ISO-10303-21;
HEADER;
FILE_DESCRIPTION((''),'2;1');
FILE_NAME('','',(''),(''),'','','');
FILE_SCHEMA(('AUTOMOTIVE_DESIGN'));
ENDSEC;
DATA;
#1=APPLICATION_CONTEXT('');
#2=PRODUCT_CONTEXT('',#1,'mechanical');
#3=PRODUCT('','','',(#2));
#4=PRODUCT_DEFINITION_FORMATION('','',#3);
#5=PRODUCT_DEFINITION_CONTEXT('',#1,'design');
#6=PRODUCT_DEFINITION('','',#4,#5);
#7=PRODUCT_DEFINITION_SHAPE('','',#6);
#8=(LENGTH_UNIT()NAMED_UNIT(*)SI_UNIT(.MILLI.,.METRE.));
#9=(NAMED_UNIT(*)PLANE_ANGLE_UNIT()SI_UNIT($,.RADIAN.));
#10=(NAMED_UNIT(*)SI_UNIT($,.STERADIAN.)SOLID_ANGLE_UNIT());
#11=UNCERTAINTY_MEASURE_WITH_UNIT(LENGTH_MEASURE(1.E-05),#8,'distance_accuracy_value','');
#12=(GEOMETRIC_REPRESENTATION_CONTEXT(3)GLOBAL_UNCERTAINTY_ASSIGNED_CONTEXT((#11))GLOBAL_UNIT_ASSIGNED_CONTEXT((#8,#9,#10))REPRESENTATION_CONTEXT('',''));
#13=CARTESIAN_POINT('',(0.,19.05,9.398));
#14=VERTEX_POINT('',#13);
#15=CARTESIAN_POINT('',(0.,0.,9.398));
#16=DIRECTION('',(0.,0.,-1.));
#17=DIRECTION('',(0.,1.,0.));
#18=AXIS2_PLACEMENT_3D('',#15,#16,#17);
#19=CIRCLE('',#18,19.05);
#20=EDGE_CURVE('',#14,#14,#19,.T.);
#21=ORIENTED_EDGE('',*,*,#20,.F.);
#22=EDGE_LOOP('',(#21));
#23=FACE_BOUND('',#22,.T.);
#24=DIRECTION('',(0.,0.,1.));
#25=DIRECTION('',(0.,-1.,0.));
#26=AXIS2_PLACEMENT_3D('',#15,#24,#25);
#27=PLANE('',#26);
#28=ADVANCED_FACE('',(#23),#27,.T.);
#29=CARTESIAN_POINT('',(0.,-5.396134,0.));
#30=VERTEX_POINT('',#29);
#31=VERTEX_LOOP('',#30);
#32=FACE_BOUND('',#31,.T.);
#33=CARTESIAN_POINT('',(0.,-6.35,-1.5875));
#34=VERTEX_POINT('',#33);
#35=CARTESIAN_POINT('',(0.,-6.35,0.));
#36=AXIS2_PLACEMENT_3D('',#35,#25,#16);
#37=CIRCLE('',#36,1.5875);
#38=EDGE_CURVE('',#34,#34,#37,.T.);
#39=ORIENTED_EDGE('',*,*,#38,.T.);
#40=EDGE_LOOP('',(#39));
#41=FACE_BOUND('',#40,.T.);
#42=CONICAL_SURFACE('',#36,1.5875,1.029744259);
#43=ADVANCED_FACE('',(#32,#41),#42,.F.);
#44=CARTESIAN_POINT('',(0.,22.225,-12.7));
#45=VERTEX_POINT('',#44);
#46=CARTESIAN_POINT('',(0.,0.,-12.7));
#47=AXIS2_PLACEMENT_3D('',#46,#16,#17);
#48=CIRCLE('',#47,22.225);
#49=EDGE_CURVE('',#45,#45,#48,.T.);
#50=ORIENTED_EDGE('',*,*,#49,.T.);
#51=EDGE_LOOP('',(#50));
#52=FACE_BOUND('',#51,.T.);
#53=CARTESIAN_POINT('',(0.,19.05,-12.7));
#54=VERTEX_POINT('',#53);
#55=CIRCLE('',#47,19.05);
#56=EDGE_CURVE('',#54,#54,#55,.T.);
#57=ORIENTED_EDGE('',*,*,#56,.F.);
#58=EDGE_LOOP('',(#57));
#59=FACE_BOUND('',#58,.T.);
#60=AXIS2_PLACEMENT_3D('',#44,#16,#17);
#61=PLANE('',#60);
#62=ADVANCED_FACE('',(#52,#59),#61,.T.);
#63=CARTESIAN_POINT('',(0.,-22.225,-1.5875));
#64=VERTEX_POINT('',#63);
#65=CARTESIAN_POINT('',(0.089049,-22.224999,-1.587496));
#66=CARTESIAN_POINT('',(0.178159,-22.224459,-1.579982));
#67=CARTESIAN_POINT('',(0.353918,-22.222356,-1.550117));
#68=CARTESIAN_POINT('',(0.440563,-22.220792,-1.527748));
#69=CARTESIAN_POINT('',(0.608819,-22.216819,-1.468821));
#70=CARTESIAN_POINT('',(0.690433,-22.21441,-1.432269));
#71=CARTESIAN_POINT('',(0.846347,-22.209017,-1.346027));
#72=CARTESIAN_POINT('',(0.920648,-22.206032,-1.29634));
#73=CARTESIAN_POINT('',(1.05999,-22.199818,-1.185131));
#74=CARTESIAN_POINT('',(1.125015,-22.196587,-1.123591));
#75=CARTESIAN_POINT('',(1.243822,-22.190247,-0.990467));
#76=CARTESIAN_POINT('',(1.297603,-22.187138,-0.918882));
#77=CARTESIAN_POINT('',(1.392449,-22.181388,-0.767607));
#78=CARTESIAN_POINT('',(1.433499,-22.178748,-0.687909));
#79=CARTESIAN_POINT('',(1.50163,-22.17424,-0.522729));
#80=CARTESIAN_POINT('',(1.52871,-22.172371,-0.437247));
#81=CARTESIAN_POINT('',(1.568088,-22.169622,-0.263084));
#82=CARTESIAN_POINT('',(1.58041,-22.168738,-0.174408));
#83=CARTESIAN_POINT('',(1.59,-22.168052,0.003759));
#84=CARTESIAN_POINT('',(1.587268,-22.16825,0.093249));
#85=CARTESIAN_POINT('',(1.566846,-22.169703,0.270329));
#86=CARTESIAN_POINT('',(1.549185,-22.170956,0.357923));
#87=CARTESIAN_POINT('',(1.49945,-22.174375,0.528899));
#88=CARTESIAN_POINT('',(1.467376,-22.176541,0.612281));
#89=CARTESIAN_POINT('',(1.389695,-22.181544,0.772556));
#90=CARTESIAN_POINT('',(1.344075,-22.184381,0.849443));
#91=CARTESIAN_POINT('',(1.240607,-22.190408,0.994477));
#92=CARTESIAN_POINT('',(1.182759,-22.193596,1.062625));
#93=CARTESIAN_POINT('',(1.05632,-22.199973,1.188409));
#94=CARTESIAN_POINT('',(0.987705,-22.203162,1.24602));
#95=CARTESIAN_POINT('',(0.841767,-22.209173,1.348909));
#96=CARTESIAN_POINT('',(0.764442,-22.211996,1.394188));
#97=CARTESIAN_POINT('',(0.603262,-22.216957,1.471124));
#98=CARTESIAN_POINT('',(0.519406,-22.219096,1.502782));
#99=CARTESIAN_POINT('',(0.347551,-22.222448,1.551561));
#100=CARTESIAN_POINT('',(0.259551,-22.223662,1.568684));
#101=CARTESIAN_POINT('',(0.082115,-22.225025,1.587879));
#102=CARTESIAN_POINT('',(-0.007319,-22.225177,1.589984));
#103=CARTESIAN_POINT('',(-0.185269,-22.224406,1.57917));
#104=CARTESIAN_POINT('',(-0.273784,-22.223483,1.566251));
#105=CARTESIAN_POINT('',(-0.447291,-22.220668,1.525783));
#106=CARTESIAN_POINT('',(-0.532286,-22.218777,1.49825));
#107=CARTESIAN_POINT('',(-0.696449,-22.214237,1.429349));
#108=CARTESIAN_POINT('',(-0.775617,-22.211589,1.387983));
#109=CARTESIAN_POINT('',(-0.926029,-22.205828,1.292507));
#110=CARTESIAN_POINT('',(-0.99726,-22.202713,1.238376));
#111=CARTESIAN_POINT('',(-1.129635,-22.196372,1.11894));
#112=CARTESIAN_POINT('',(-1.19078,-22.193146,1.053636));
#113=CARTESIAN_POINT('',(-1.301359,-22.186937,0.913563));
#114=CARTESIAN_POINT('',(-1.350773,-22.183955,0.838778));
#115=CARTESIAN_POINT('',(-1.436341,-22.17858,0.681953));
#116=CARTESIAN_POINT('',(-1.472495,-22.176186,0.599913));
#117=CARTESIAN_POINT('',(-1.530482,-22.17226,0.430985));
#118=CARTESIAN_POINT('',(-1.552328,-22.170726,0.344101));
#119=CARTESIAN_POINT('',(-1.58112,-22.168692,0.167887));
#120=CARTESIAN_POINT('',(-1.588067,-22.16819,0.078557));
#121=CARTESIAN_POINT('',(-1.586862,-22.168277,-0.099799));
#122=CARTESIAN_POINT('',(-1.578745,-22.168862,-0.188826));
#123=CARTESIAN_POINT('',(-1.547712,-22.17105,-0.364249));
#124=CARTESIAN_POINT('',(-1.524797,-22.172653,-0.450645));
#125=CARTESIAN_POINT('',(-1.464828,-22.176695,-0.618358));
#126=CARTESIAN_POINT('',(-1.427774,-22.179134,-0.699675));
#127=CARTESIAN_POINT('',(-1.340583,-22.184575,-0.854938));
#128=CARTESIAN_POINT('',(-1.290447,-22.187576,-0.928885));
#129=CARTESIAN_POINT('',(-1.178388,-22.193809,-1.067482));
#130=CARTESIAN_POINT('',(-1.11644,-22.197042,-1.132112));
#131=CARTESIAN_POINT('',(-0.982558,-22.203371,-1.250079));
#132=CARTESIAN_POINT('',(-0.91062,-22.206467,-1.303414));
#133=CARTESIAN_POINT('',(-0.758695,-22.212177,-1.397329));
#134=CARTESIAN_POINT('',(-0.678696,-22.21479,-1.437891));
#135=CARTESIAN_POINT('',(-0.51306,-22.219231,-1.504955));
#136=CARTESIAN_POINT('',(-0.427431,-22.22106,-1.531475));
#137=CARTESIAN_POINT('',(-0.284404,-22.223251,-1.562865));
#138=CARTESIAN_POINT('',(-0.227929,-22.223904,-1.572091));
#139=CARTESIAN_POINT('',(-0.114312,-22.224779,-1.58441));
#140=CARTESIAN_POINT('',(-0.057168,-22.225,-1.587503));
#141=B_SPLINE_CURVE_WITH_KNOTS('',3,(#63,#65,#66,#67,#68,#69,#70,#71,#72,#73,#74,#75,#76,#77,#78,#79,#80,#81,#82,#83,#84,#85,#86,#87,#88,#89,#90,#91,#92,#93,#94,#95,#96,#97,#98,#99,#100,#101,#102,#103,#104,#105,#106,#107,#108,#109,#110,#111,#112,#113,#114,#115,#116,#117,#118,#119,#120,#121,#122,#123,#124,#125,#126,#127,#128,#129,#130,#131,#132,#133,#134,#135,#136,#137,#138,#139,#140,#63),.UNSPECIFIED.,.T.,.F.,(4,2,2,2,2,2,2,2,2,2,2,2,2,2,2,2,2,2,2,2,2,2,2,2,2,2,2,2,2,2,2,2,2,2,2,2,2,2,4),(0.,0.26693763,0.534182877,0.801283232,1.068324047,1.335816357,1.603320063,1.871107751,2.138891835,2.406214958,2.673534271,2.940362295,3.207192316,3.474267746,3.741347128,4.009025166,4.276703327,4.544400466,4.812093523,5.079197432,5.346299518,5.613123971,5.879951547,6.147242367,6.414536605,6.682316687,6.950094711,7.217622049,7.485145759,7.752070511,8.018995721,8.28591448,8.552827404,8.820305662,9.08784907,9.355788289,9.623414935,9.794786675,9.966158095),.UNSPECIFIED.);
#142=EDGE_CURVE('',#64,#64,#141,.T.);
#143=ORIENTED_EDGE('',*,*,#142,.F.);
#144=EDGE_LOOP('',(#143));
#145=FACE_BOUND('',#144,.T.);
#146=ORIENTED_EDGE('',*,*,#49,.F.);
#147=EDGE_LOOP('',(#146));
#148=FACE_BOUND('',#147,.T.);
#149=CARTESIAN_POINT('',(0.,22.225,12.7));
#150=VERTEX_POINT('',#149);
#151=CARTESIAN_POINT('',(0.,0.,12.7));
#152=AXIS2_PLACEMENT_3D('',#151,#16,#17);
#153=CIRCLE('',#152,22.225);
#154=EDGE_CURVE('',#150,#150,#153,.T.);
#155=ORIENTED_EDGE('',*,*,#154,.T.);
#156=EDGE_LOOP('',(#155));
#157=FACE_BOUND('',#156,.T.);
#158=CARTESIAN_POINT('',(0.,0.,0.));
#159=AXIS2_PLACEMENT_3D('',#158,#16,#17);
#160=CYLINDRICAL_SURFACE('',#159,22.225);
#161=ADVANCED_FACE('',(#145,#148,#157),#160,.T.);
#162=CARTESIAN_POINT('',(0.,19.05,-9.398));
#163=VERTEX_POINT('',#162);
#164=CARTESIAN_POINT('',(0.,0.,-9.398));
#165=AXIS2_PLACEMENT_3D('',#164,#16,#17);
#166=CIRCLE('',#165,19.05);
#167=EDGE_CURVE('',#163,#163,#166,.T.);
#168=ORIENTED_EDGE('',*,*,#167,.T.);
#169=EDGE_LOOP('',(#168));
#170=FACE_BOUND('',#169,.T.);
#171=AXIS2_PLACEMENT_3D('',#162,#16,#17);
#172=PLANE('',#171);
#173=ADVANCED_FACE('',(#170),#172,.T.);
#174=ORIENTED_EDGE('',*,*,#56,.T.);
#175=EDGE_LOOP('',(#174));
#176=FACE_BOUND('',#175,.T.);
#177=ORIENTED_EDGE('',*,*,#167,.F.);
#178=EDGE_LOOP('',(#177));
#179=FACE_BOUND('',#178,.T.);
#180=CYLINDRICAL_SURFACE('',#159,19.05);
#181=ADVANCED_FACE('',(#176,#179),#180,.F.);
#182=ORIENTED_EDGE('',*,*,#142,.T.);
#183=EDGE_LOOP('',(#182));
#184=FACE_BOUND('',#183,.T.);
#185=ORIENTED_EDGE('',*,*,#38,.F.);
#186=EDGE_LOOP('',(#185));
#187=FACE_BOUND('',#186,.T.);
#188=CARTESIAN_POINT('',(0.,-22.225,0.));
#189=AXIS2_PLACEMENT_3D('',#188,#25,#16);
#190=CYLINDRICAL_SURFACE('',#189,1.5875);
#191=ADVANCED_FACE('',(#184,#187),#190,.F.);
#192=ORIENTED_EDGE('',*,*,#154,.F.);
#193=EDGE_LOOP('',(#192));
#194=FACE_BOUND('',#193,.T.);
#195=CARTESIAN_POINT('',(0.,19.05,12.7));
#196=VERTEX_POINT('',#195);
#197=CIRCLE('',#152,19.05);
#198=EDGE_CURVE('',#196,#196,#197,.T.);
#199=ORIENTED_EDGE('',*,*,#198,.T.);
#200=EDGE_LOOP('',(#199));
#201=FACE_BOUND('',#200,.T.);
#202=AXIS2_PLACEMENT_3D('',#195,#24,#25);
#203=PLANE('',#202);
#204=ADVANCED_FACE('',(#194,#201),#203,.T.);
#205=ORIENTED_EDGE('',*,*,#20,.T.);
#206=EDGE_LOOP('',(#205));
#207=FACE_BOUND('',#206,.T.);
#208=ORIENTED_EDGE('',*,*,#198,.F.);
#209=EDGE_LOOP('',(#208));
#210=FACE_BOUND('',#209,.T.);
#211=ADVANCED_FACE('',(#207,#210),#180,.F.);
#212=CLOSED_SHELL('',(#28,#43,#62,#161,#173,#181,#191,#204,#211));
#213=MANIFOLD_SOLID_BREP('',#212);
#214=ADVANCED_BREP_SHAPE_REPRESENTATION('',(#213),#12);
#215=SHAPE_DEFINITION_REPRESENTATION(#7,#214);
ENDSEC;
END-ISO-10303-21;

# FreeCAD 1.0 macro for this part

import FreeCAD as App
import Part
import Sketcher
Q = App.Units.Quantity


def add_polygon(sketch, points):
    """Adds a closed chain of lines whose ends are joined by coincident constraints."""
    first, n = sketch.GeometryCount, len(points)
    for a, b in zip(points, points[1:] + points[:1]):
        sketch.addGeometry(Part.LineSegment(App.Vector(*a, 0), App.Vector(*b, 0)), False)
    for i in range(n):
        sketch.addConstraint(Sketcher.Constraint("Coincident", first + i, 2, first + (i + 1) % n, 1))

doc = App.newDocument("Part")
body = doc.addObject("PartDesign::Body", "Body")

sketch1 = doc.addObject("Sketcher::SketchObject", "Sketch")
body.addObject(sketch1)
sketch1.AttachmentSupport = (doc.YZ_Plane, [""])
sketch1.MapMode = "FlatFace"
add_polygon(sketch1, [(0, 9.4), (0, -9.4), (19.1, -9.4), (19.1, -12.7), (22.2, -12.7), (22.2, 12.7), (19.1, 12.7), (19.1, 9.4)])
sketch1.addConstraint(Sketcher.Constraint("Vertical", 0))
sketch1.addConstraint(Sketcher.Constraint("Horizontal", 1))
sketch1.addConstraint(Sketcher.Constraint("Vertical", 2))
sketch1.addConstraint(Sketcher.Constraint("Horizontal", 3))
sketch1.addConstraint(Sketcher.Constraint("Vertical", 4))
sketch1.addConstraint(Sketcher.Constraint("Horizontal", 5))
sketch1.addConstraint(Sketcher.Constraint("Vertical", 6))
sketch1.addConstraint(Sketcher.Constraint("Horizontal", 7))
sketch1.addConstraint(Sketcher.Constraint("Symmetric", 0, 2, 7, 2, -1, 1))
sketch1.addConstraint(Sketcher.Constraint("Symmetric", 2, 2, 5, 2, -1))
sketch1.addConstraint(Sketcher.Constraint("DistanceY", 4, 1, 4, 2, Q("1 in")))
sketch1.addConstraint(Sketcher.Constraint("DistanceX", 1, 1, 1, 2, Q("0.75 in")))
sketch1.addConstraint(Sketcher.Constraint("DistanceY", 0, 2, 0, 1, Q("0.74 in")))
sketch1.addConstraint(Sketcher.Constraint("DistanceX", 3, 1, 3, 2, Q("0.125 in")))
revolution = doc.addObject("PartDesign::Revolution", "Revolution")
body.addObject(revolution)
revolution.Profile = sketch1
revolution.ReferenceAxis = (sketch1, ["V_Axis"])
revolution.Angle = 360

sketch2 = doc.addObject("Sketcher::SketchObject", "Sketch001")
body.addObject(sketch2)
sketch2.AttachmentSupport = (doc.XZ_Plane, [""])
sketch2.MapMode = "FlatFace"
sketch2.AttachmentOffset = App.Placement(App.Vector(0, 0, 0.875 * 25.4), App.Rotation())
sketch2.addGeometry(Part.Circle(App.Vector(0, 0, 0), App.Vector(0, 0, 1), 1.6), False)
sketch2.addConstraint(Sketcher.Constraint("Coincident", 0, 3, -1, 1))
sketch2.addConstraint(Sketcher.Constraint("Diameter", 0, Q("0.125 in")))
doc.recompute()
hole = doc.addObject("PartDesign::Hole", "Hole")
body.addObject(hole)
hole.Profile = sketch2
hole.ThreadType = "None"
hole.Diameter = Q("0.125 in")
hole.DepthType = "Dimension"
hole.Depth = Q("0.625 in")
hole.DrillPoint = "Angled"
hole.DrillPointAngle = 118

doc.recompute()
